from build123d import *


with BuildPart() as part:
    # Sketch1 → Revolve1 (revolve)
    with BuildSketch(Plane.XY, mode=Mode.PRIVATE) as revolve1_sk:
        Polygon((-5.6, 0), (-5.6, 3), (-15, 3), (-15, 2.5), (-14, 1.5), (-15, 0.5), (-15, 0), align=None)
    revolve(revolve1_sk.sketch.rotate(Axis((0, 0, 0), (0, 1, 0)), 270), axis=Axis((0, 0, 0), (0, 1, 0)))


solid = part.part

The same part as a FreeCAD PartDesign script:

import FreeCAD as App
import Part
import Sketcher
Q = App.Units.Quantity

doc = App.newDocument("Part")
body = doc.addObject("PartDesign::Body", "Body")

sketch1 = body.newObject("Sketcher::SketchObject", "Sketch")
sketch1.AttachmentSupport = (doc.getObject("XY_Plane"), [""])
sketch1.MapMode = "FlatFace"
sketch1.addGeometry([
    Part.LineSegment(App.Vector(-5.6, 0, 0), App.Vector(-5.6, 3, 0)),
    Part.LineSegment(App.Vector(-5.6, 3, 0), App.Vector(-15, 3, 0)),
    Part.LineSegment(App.Vector(-15, 3, 0), App.Vector(-15, 2.5, 0)),
    Part.LineSegment(App.Vector(-15, 2.5, 0), App.Vector(-14, 1.5, 0)),
    Part.LineSegment(App.Vector(-14, 1.5, 0), App.Vector(-15, 0.5, 0)),
    Part.LineSegment(App.Vector(-15, 0.5, 0), App.Vector(-15, 0, 0)),
    Part.LineSegment(App.Vector(-15, 0, 0), App.Vector(-5.6, 0, 0)),
], False)
sketch1.addConstraint([
    Sketcher.Constraint("Coincident", 0, 2, 1, 1),
    Sketcher.Constraint("Coincident", 1, 2, 2, 1),
    Sketcher.Constraint("Coincident", 2, 2, 3, 1),
    Sketcher.Constraint("Coincident", 3, 2, 4, 1),
    Sketcher.Constraint("Coincident", 4, 2, 5, 1),
    Sketcher.Constraint("Coincident", 5, 2, 6, 1),
    Sketcher.Constraint("Coincident", 6, 2, 0, 1),
    Sketcher.Constraint("Vertical", 0),
    Sketcher.Constraint("Horizontal", 1),
    Sketcher.Constraint("Vertical", 2),
    Sketcher.Constraint("Vertical", 5),
    Sketcher.Constraint("Horizontal", 6),
    Sketcher.Constraint("PointOnObject", 5, 2, -1),
    Sketcher.Constraint("Perpendicular", 3, 4),
    Sketcher.Constraint("Vertical", 2, 2, 4, 2),
    Sketcher.Constraint("Equal", 2, 5),
    Sketcher.Constraint("Equal", 3, 4),
    Sketcher.Constraint("DistanceY", 0, 1, 0, 2, Q("3 mm")),
    Sketcher.Constraint("DistanceX", 1, 2, 1, 1, Q("9.4 mm")),
    Sketcher.Constraint("DistanceY", 2, 2, 2, 1, Q("0.5 mm")),
    Sketcher.Constraint("DistanceX", 1, 2, -1, 1, Q("15 mm")),
])
revolution = body.newObject("PartDesign::Revolution", "Revolution")
revolution.Profile = sketch1
revolution.ReferenceAxis = (sketch1, ["V_Axis"])
revolution.Angle = 360

doc.recompute()
